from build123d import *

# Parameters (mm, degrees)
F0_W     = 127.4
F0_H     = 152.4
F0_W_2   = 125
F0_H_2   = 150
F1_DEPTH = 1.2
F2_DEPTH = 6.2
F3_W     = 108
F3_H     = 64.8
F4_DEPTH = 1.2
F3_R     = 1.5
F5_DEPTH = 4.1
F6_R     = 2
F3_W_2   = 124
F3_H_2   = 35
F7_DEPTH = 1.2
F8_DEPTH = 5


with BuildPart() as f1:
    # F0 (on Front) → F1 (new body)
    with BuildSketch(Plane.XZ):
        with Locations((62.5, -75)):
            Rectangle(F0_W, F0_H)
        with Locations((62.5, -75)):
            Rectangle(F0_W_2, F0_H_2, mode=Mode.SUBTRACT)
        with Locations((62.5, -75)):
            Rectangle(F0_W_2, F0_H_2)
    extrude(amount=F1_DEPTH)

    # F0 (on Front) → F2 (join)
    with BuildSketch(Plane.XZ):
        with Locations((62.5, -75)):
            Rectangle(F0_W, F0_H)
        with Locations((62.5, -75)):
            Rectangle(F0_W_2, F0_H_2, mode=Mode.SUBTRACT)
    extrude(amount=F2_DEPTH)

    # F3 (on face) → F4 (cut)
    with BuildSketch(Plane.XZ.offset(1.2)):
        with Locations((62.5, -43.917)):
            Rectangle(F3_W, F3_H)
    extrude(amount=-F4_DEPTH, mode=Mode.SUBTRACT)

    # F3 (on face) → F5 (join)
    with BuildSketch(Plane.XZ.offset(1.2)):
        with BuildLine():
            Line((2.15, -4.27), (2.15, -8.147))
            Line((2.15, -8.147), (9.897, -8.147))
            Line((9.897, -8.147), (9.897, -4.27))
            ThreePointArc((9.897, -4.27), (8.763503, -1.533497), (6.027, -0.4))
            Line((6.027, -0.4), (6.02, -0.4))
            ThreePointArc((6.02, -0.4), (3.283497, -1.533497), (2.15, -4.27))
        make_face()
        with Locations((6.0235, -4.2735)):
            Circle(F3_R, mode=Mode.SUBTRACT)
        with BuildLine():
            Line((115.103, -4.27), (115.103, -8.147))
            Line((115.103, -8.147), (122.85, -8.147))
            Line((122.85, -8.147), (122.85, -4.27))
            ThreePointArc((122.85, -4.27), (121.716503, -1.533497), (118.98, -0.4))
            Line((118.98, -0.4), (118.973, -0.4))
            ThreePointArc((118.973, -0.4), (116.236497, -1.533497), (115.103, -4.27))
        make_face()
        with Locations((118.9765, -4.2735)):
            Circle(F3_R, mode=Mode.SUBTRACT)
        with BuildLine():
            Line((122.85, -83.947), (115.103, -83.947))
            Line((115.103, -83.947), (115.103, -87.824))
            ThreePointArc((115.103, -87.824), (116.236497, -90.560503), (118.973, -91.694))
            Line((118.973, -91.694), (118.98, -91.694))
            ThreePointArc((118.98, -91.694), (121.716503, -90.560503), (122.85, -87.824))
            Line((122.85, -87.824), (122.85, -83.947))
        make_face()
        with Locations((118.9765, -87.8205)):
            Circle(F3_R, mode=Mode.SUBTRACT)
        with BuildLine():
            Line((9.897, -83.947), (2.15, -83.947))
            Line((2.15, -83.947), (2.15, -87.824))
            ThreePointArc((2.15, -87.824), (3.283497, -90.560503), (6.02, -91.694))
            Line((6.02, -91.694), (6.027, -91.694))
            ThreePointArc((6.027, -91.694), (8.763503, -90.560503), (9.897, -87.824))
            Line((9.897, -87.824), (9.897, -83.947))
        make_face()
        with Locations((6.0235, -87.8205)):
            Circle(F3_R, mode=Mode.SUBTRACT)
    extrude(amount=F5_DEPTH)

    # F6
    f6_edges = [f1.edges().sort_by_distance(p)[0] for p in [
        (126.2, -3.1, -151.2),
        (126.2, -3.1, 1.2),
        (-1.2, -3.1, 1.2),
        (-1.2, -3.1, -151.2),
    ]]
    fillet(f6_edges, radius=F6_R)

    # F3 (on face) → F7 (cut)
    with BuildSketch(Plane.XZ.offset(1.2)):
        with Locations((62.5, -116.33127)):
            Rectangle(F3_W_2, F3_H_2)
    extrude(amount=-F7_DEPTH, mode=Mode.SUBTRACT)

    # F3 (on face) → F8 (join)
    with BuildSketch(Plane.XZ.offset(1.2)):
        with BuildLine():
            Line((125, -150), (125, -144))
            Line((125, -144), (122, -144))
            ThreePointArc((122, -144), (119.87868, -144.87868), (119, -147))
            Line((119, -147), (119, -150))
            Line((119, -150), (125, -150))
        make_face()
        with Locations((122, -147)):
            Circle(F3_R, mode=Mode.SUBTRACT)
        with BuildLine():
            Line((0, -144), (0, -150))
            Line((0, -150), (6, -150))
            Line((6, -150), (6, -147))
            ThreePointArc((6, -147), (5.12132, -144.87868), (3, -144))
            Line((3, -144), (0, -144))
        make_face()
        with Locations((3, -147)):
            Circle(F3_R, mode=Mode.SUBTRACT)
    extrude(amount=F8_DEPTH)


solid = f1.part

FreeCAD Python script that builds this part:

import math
import FreeCAD as App
import Part
import Sketcher


def edges_at(feature, points):
    """Names of the edges that pass closest to the given points."""
    edges = feature.Shape.Edges
    near = lambda p: min(range(len(edges)), key=lambda i: edges[i].distToShape(Part.Vertex(*p))[0])
    return sorted({f"Edge{near(p) + 1}" for p in points})


def add_polygon(sketch, points):
    """Adds a closed chain of lines whose ends are joined by coincident constraints."""
    first, n = sketch.GeometryCount, len(points)
    for a, b in zip(points, points[1:] + points[:1]):
        sketch.addGeometry(Part.LineSegment(App.Vector(*a, 0), App.Vector(*b, 0)), False)
    for i in range(n):
        sketch.addConstraint(Sketcher.Constraint("Coincident", first + i, 2, first + (i + 1) % n, 1))

doc = App.newDocument("Part")
body = doc.addObject("PartDesign::Body", "Body")

# Sketch on XZ plane
sketch1 = body.newObject("Sketcher::SketchObject", "Sketch")
sketch1.AttachmentSupport = (doc.getObject("XZ_Plane"), [""])
sketch1.MapMode = "FlatFace"
add_polygon(sketch1, [(-1, 1), (-1, -151), (126, -151), (126, 1)])  # lines 0-3
sketch1.addConstraint([
    Sketcher.Constraint("Vertical", 0),
    Sketcher.Constraint("Horizontal", 1),
    Sketcher.Constraint("Vertical", 2),
    Sketcher.Constraint("Horizontal", 3),
    Sketcher.Constraint("DistanceX", 1, 1, 1, 2, 127.4),
    Sketcher.Constraint("DistanceY", 0, 2, 0, 1, 152.4),
    Sketcher.Constraint("DistanceX", 0, 2, -1, 1, 1.2),
    Sketcher.Constraint("DistanceY", 0, 2, -1, 1, 151.2),
])
pad1 = body.newObject("PartDesign::Pad", "Pad")
pad1.Profile = sketch1
pad1.Length = 1.2

# Sketch on XZ plane
sketch2 = body.newObject("Sketcher::SketchObject", "Sketch001")
sketch2.AttachmentSupport = (doc.getObject("XZ_Plane"), [""])
sketch2.MapMode = "FlatFace"
add_polygon(sketch2, [(-1, 1), (-1, -151), (126, -151), (126, 1)])  # lines 0-3
add_polygon(sketch2, [(125, -150), (0, -150), (0, 0), (125, 0)])  # lines 4-7
sketch2.addConstraint([
    Sketcher.Constraint("Vertical", 0),
    Sketcher.Constraint("Horizontal", 1),
    Sketcher.Constraint("Vertical", 2),
    Sketcher.Constraint("Horizontal", 3),
    Sketcher.Constraint("Horizontal", 4),
    Sketcher.Constraint("Vertical", 5),
    Sketcher.Constraint("Horizontal", 6),
    Sketcher.Constraint("Vertical", 7),
    Sketcher.Constraint("Coincident", 5, 2, -1, 1),
    Sketcher.Constraint("DistanceX", 4, 2, 4, 1, 125.0),
    Sketcher.Constraint("DistanceY", 5, 1, 5, 2, 150.0),
    Sketcher.Constraint("DistanceX", 1, 1, 1, 2, 127.4),
    Sketcher.Constraint("DistanceY", 0, 2, 0, 1, 152.4),
    Sketcher.Constraint("DistanceX", 0, 2, -1, 1, 1.2),
    Sketcher.Constraint("DistanceY", 0, 2, -1, 1, 151.2),
])
pad2 = body.newObject("PartDesign::Pad", "Pad001")
pad2.Profile = sketch2
pad2.Length = 6.2

# Sketch on XZ plane
sketch3 = body.newObject("Sketcher::SketchObject", "Sketch002")
sketch3.AttachmentSupport = (doc.getObject("XZ_Plane"), [""])
sketch3.MapMode = "FlatFace"
sketch3.AttachmentOffset = App.Placement(App.Vector(0, 0, 1.2), App.Rotation())
add_polygon(sketch3, [(8, -12), (8, -76), (116, -76), (116, -12)])  # lines 0-3
sketch3.addConstraint([
    Sketcher.Constraint("Vertical", 0),
    Sketcher.Constraint("Horizontal", 1),
    Sketcher.Constraint("Vertical", 2),
    Sketcher.Constraint("Horizontal", 3),
    Sketcher.Constraint("DistanceX", 1, 1, 1, 2, 108.0),
    Sketcher.Constraint("DistanceY", 0, 2, 0, 1, 64.8),
    Sketcher.Constraint("DistanceX", -1, 1, 0, 2, 8.5),
    Sketcher.Constraint("DistanceY", 0, 2, -1, 1, 76.317),
])
pocket1 = body.newObject("PartDesign::Pocket", "Pocket")
pocket1.Profile = sketch3
pocket1.Length = 1.2

# Sketch on XZ plane
sketch4 = body.newObject("Sketcher::SketchObject", "Sketch003")
sketch4.AttachmentSupport = (doc.getObject("XZ_Plane"), [""])
sketch4.MapMode = "FlatFace"
sketch4.AttachmentOffset = App.Placement(App.Vector(0, 0, 1.2), App.Rotation())
sketch4.addGeometry([
    Part.LineSegment(App.Vector(2.15, -4.27, 0), App.Vector(2.15, -8.147, 0)),  # 0
    Part.LineSegment(App.Vector(2.15, -8.147, 0), App.Vector(9.897, -8.147, 0)),  # 1
    Part.LineSegment(App.Vector(9.897, -8.147, 0), App.Vector(9.897, -4.27, 0)),  # 2
    Part.ArcOfCircle(Part.Circle(App.Vector(6.027, -4.27, 0), App.Vector(0, 0, 1), 3.87), math.radians(0), math.radians(90)),  # 3
    Part.LineSegment(App.Vector(6.027, -0.4, 0), App.Vector(6.02, -0.4, 0)),  # 4
    Part.ArcOfCircle(Part.Circle(App.Vector(6.02, -4.27, 0), App.Vector(0, 0, 1), 3.87), math.radians(90), math.radians(180)),  # 5
    Part.Circle(App.Vector(6.024, -4.274, 0), App.Vector(0, 0, 1), 1.5),  # 6
    Part.LineSegment(App.Vector(115.103, -4.27, 0), App.Vector(115.103, -8.147, 0)),  # 7
    Part.LineSegment(App.Vector(115.103, -8.147, 0), App.Vector(122.85, -8.147, 0)),  # 8
    Part.LineSegment(App.Vector(122.85, -8.147, 0), App.Vector(122.85, -4.27, 0)),  # 9
    Part.ArcOfCircle(Part.Circle(App.Vector(118.98, -4.27, 0), App.Vector(0, 0, 1), 3.87), math.radians(0), math.radians(90)),  # 10
    Part.LineSegment(App.Vector(118.98, -0.4, 0), App.Vector(118.973, -0.4, 0)),  # 11
    Part.ArcOfCircle(Part.Circle(App.Vector(118.973, -4.27, 0), App.Vector(0, 0, 1), 3.87), math.radians(90), math.radians(180)),  # 12
    Part.Circle(App.Vector(118.977, -4.274, 0), App.Vector(0, 0, 1), 1.5),  # 13
    Part.LineSegment(App.Vector(122.85, -83.947, 0), App.Vector(115.103, -83.947, 0)),  # 14
    Part.LineSegment(App.Vector(115.103, -83.947, 0), App.Vector(115.103, -87.824, 0)),  # 15
    Part.ArcOfCircle(Part.Circle(App.Vector(118.973, -87.824, 0), App.Vector(0, 0, 1), 3.87), math.radians(-180), math.radians(-90)),  # 16
    Part.LineSegment(App.Vector(118.973, -91.694, 0), App.Vector(118.98, -91.694, 0)),  # 17
    Part.ArcOfCircle(Part.Circle(App.Vector(118.98, -87.824, 0), App.Vector(0, 0, 1), 3.87), math.radians(-90), math.radians(0)),  # 18
    Part.LineSegment(App.Vector(122.85, -87.824, 0), App.Vector(122.85, -83.947, 0)),  # 19
    Part.Circle(App.Vector(118.977, -87.82, 0), App.Vector(0, 0, 1), 1.5),  # 20
    Part.LineSegment(App.Vector(9.897, -83.947, 0), App.Vector(2.15, -83.947, 0)),  # 21
    Part.LineSegment(App.Vector(2.15, -83.947, 0), App.Vector(2.15, -87.824, 0)),  # 22
    Part.ArcOfCircle(Part.Circle(App.Vector(6.02, -87.824, 0), App.Vector(0, 0, 1), 3.87), math.radians(-180), math.radians(-90)),  # 23
    Part.LineSegment(App.Vector(6.02, -91.694, 0), App.Vector(6.027, -91.694, 0)),  # 24
    Part.ArcOfCircle(Part.Circle(App.Vector(6.027, -87.824, 0), App.Vector(0, 0, 1), 3.87), math.radians(-90), math.radians(0)),  # 25
    Part.LineSegment(App.Vector(9.897, -87.824, 0), App.Vector(9.897, -83.947, 0)),  # 26
    Part.Circle(App.Vector(6.024, -87.82, 0), App.Vector(0, 0, 1), 1.5),  # 27
], False)
sketch4.addConstraint([
    Sketcher.Constraint("Coincident", 0, 2, 1, 1),
    Sketcher.Constraint("Coincident", 1, 2, 2, 1),
    Sketcher.Constraint("Tangent", 2, 2, 3, 1),
    Sketcher.Constraint("Tangent", 3, 2, 4, 1),
    Sketcher.Constraint("Tangent", 4, 2, 5, 1),
    Sketcher.Constraint("Tangent", 5, 2, 0, 1),
    Sketcher.Constraint("Coincident", 7, 2, 8, 1),
    Sketcher.Constraint("Coincident", 8, 2, 9, 1),
    Sketcher.Constraint("Tangent", 9, 2, 10, 1),
    Sketcher.Constraint("Tangent", 10, 2, 11, 1),
    Sketcher.Constraint("Tangent", 11, 2, 12, 1),
    Sketcher.Constraint("Tangent", 12, 2, 7, 1),
    Sketcher.Constraint("Coincident", 14, 2, 15, 1),
    Sketcher.Constraint("Tangent", 15, 2, 16, 1),
    Sketcher.Constraint("Tangent", 16, 2, 17, 1),
    Sketcher.Constraint("Tangent", 17, 2, 18, 1),
    Sketcher.Constraint("Tangent", 18, 2, 19, 1),
    Sketcher.Constraint("Coincident", 19, 2, 14, 1),
    Sketcher.Constraint("Coincident", 21, 2, 22, 1),
    Sketcher.Constraint("Tangent", 22, 2, 23, 1),
    Sketcher.Constraint("Tangent", 23, 2, 24, 1),
    Sketcher.Constraint("Tangent", 24, 2, 25, 1),
    Sketcher.Constraint("Tangent", 25, 2, 26, 1),
    Sketcher.Constraint("Coincident", 26, 2, 21, 1),
    Sketcher.Constraint("Vertical", 0),
    Sketcher.Constraint("Horizontal", 1),
    Sketcher.Constraint("Vertical", 2),
    Sketcher.Constraint("Vertical", 7),
    Sketcher.Constraint("Horizontal", 8),
    Sketcher.Constraint("Vertical", 9),
    Sketcher.Constraint("Horizontal", 14),
    Sketcher.Constraint("Vertical", 15),
    Sketcher.Constraint("Vertical", 19),
    Sketcher.Constraint("Horizontal", 21),
    Sketcher.Constraint("Vertical", 22),
    Sketcher.Constraint("Vertical", 26),
    Sketcher.Constraint("Equal", 3, 5),
    Sketcher.Constraint("Equal", 5, 10),
    Sketcher.Constraint("Equal", 10, 12),
    Sketcher.Constraint("Equal", 6, 13),
    Sketcher.Constraint("Equal", 12, 16),
    Sketcher.Constraint("Equal", 16, 18),
    Sketcher.Constraint("Equal", 13, 20),
    Sketcher.Constraint("Equal", 18, 23),
    Sketcher.Constraint("Equal", 23, 25),
    Sketcher.Constraint("Equal", 20, 27),
    Sketcher.Constraint("Horizontal", 5, 3, 10, 3),
    Sketcher.Constraint("Horizontal", 6, 3, 13, 3),
    Sketcher.Constraint("Horizontal", 18, 3, 23, 3),
    Sketcher.Constraint("Horizontal", 20, 3, 27, 3),
    Sketcher.Constraint("Horizontal", 1, 2, 7, 2),
    Sketcher.Constraint("Horizontal", 19, 2, 21, 2),
    Sketcher.Constraint("Vertical", 12, 3, 16, 3),
    Sketcher.Constraint("Vertical", 10, 3, 18, 3),
    Sketcher.Constraint("Vertical", 13, 3, 20, 3),
    Sketcher.Constraint("Vertical", 5, 3, 23, 3),
    Sketcher.Constraint("Vertical", 3, 3, 25, 3),
    Sketcher.Constraint("Vertical", 6, 3, 27, 3),
    Sketcher.Constraint("Vertical", 25, 3, 3, 2),
    Sketcher.Constraint("Vertical", 18, 3, 10, 2),
    Sketcher.Constraint("Vertical", 11, 2, 16, 2),
    Sketcher.Constraint("Vertical", 4, 2, 23, 2),
    Sketcher.Constraint("Equal", 1, 8),
    Sketcher.Constraint("Equal", 9, 15),
    Sketcher.Constraint("Diameter", 6, 3.0),
    Sketcher.Constraint("Radius", 3, 3.870001),
    Sketcher.Constraint("DistanceY", 3, 2, -1, 1, 0.4),
    Sketcher.Constraint("DistanceY", 14, 2, 7, 2, 75.8),
    Sketcher.Constraint("DistanceX", 1, 1, 1, 2, 7.747),
    Sketcher.Constraint("DistanceY", 0, 2, 0, 1, 3.877),
    Sketcher.Constraint("DistanceX", -1, 1, 5, 3, 6.020001),
    Sketcher.Constraint("DistanceX", -1, 1, 10, 3, 118.979999),
    Sketcher.Constraint("DistanceX", 6, 3, 13, 3, 112.953),
    Sketcher.Constraint("DistanceY", 20, 3, 13, 3, 83.547),
    Sketcher.Constraint("DistanceX", -1, 1, 6, 3, 6.0235),
    Sketcher.Constraint("DistanceY", 6, 3, -1, 1, 4.2735),
])
pad3 = body.newObject("PartDesign::Pad", "Pad002")
pad3.Profile = sketch4
pad3.Length = 4.1
doc.recompute()

fillet = body.newObject("PartDesign::Fillet", "Fillet")
fillet.Base = (pad3, edges_at(pad3, [
    (126.2, -3.1, -151.2),
    (126.2, -3.1, 1.2),
    (-1.2, -3.1, 1.2),
    (-1.2, -3.1, -151.2),
]))
fillet.Radius = 2

# Sketch on XZ plane
sketch5 = body.newObject("Sketcher::SketchObject", "Sketch004")
sketch5.AttachmentSupport = (doc.getObject("XZ_Plane"), [""])
sketch5.MapMode = "FlatFace"
sketch5.AttachmentOffset = App.Placement(App.Vector(0, 0, 1.2), App.Rotation())
add_polygon(sketch5, [(0, -99), (0, -134), (124, -134), (124, -99)])  # lines 0-3
sketch5.addConstraint([
    Sketcher.Constraint("Vertical", 0),
    Sketcher.Constraint("Horizontal", 1),
    Sketcher.Constraint("Vertical", 2),
    Sketcher.Constraint("Horizontal", 3),
    Sketcher.Constraint("DistanceX", 1, 1, 1, 2, 124.0),
    Sketcher.Constraint("DistanceY", 0, 2, 0, 1, 35.0),
    Sketcher.Constraint("DistanceX", -1, 1, 0, 2, 0.5),
    Sketcher.Constraint("DistanceY", 0, 2, -1, 1, 133.83127),
])
pocket2 = body.newObject("PartDesign::Pocket", "Pocket001")
pocket2.Profile = sketch5
pocket2.Length = 1.2

# Sketch on XZ plane
sketch6 = body.newObject("Sketcher::SketchObject", "Sketch005")
sketch6.AttachmentSupport = (doc.getObject("XZ_Plane"), [""])
sketch6.MapMode = "FlatFace"
sketch6.AttachmentOffset = App.Placement(App.Vector(0, 0, 1.2), App.Rotation())
sketch6.addGeometry([
    Part.LineSegment(App.Vector(125, -150, 0), App.Vector(125, -144, 0)),  # 0
    Part.LineSegment(App.Vector(125, -144, 0), App.Vector(122, -144, 0)),  # 1
    Part.ArcOfCircle(Part.Circle(App.Vector(122, -147, 0), App.Vector(0, 0, 1), 3), math.radians(90), math.radians(180)),  # 2
    Part.LineSegment(App.Vector(119, -147, 0), App.Vector(119, -150, 0)),  # 3
    Part.LineSegment(App.Vector(119, -150, 0), App.Vector(125, -150, 0)),  # 4
    Part.Circle(App.Vector(122, -147, 0), App.Vector(0, 0, 1), 1.5),  # 5
    Part.LineSegment(App.Vector(0, -144, 0), App.Vector(0, -150, 0)),  # 6
    Part.LineSegment(App.Vector(0, -150, 0), App.Vector(6, -150, 0)),  # 7
    Part.LineSegment(App.Vector(6, -150, 0), App.Vector(6, -147, 0)),  # 8
    Part.ArcOfCircle(Part.Circle(App.Vector(3, -147, 0), App.Vector(0, 0, 1), 3), math.radians(0), math.radians(90)),  # 9
    Part.LineSegment(App.Vector(3, -144, 0), App.Vector(0, -144, 0)),  # 10
    Part.Circle(App.Vector(3, -147, 0), App.Vector(0, 0, 1), 1.5),  # 11
], False)
sketch6.addConstraint([
    Sketcher.Constraint("Coincident", 0, 2, 1, 1),
    Sketcher.Constraint("Tangent", 1, 2, 2, 1),
    Sketcher.Constraint("Tangent", 2, 2, 3, 1),
    Sketcher.Constraint("Coincident", 3, 2, 4, 1),
    Sketcher.Constraint("Coincident", 4, 2, 0, 1),
    Sketcher.Constraint("Coincident", 6, 2, 7, 1),
    Sketcher.Constraint("Coincident", 7, 2, 8, 1),
    Sketcher.Constraint("Tangent", 8, 2, 9, 1),
    Sketcher.Constraint("Tangent", 9, 2, 10, 1),
    Sketcher.Constraint("Coincident", 10, 2, 6, 1),
    Sketcher.Constraint("Vertical", 0),
    Sketcher.Constraint("Horizontal", 1),
    Sketcher.Constraint("Vertical", 3),
    Sketcher.Constraint("Horizontal", 4),
    Sketcher.Constraint("Vertical", 6),
    Sketcher.Constraint("Horizontal", 7),
    Sketcher.Constraint("Vertical", 8),
    Sketcher.Constraint("Horizontal", 10),
    Sketcher.Constraint("Coincident", 5, 3, 2, 3),
    Sketcher.Constraint("Coincident", 11, 3, 9, 3),
    Sketcher.Constraint("Equal", 2, 9),
    Sketcher.Constraint("Equal", 5, 11),
    Sketcher.Constraint("PointOnObject", 6, 2, -2),
    Sketcher.Constraint("Horizontal", 5, 3, 9, 3),
    Sketcher.Constraint("Horizontal", 4, 2, 6, 2),
    Sketcher.Constraint("Equal", 4, 7),
    Sketcher.Constraint("Equal", 7, 0),
    Sketcher.Constraint("Diameter", 5, 3.0),
    Sketcher.Constraint("Radius", 2, 3.000001),
    Sketcher.Constraint("DistanceX", 1, 2, 1, 1, 3.0),
    Sketcher.Constraint("DistanceX", -1, 1, 2, 3, 122.000001),
    Sketcher.Constraint("DistanceY", 2, 3, -1, 1, 147.000001),
])
pad4 = body.newObject("PartDesign::Pad", "Pad003")
pad4.Profile = sketch6
pad4.Length = 5

doc.recompute()
